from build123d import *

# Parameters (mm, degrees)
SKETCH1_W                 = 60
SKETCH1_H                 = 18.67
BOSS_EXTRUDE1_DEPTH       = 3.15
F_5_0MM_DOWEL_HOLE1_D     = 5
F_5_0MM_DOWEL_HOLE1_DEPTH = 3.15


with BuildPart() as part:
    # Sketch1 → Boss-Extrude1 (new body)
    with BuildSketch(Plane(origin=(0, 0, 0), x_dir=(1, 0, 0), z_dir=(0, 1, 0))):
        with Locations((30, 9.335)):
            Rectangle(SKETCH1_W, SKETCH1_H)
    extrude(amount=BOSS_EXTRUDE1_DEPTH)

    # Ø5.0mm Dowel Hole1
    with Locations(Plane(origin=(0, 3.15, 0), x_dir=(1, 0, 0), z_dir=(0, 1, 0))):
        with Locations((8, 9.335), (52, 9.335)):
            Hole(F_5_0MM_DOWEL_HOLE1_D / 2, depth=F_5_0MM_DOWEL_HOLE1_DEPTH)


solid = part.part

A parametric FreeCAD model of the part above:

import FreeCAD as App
import Part
import Sketcher

V = App.Vector

doc = App.newDocument("Part")
body = doc.addObject("PartDesign::Body", "Body")

# Sketch on XZ plane
sketch1 = body.newObject("Sketcher::SketchObject", "Sketch")
sketch1.AttachmentSupport = (doc.getObject("XZ_Plane"), [""])
sketch1.MapMode = "FlatFace"
sketch1.addGeometry(Part.LineSegment(V(0, -19, 0), V(0, 0, 0)), False)
sketch1.addGeometry(Part.LineSegment(V(0, 0, 0), V(60, 0, 0)), False)
sketch1.addGeometry(Part.LineSegment(V(60, 0, 0), V(60, -19, 0)), False)
sketch1.addGeometry(Part.LineSegment(V(60, -19, 0), V(0, -19, 0)), False)
sketch1.addConstraint(Sketcher.Constraint("Coincident", 0, 2, 1, 1))
sketch1.addConstraint(Sketcher.Constraint("Coincident", 1, 2, 2, 1))
sketch1.addConstraint(Sketcher.Constraint("Coincident", 2, 2, 3, 1))
sketch1.addConstraint(Sketcher.Constraint("Coincident", 3, 2, 0, 1))
sketch1.addConstraint(Sketcher.Constraint("Vertical", 0))
sketch1.addConstraint(Sketcher.Constraint("Horizontal", 1))
sketch1.addConstraint(Sketcher.Constraint("Vertical", 2))
sketch1.addConstraint(Sketcher.Constraint("Horizontal", 3))
sketch1.addConstraint(Sketcher.Constraint("Coincident", 0, 2, -1, 1))
sketch1.addConstraint(Sketcher.Constraint("DistanceX", 1, 1, 1, 2, 60.0))
sketch1.addConstraint(Sketcher.Constraint("DistanceY", 0, 1, 0, 2, 18.67))
pad1 = body.newObject("PartDesign::Pad", "Pad")
pad1.Profile = sketch1
pad1.Length = 3.15
pad1.Reversed = True

# Sketch on XZ plane
sketch2 = body.newObject("Sketcher::SketchObject", "Sketch001")
sketch2.AttachmentSupport = (doc.getObject("XZ_Plane"), [""])
sketch2.MapMode = "FlatFace"
sketch2.AttachmentOffset = App.Placement(V(0, 0, -3.15), App.Rotation())
sketch2.addGeometry(Part.Circle(V(8, -9.3, 0), V(0, 0, 1), 2.5), False)
sketch2.addGeometry(Part.Circle(V(52, -9.3, 0), V(0, 0, 1), 2.5), False)
sketch2.addConstraint(Sketcher.Constraint("Equal", 0, 1))
sketch2.addConstraint(Sketcher.Constraint("Horizontal", 0, 3, 1, 3))
sketch2.addConstraint(Sketcher.Constraint("Diameter", 0, 5.0))
sketch2.addConstraint(Sketcher.Constraint("DistanceX", -1, 1, 0, 3, 8.0))
sketch2.addConstraint(Sketcher.Constraint("DistanceX", -1, 1, 1, 3, 52.0))
sketch2.addConstraint(Sketcher.Constraint("DistanceY", 0, 3, -1, 1, 9.335))
doc.recompute()
hole = body.newObject("PartDesign::Hole", "Hole")
hole.Profile = sketch2
hole.ThreadType = "None"
hole.Diameter = 5
hole.DepthType = "Dimension"
hole.Depth = 3.15
hole.DrillPoint = "Flat"
hole.Reversed = True

doc.recompute()
